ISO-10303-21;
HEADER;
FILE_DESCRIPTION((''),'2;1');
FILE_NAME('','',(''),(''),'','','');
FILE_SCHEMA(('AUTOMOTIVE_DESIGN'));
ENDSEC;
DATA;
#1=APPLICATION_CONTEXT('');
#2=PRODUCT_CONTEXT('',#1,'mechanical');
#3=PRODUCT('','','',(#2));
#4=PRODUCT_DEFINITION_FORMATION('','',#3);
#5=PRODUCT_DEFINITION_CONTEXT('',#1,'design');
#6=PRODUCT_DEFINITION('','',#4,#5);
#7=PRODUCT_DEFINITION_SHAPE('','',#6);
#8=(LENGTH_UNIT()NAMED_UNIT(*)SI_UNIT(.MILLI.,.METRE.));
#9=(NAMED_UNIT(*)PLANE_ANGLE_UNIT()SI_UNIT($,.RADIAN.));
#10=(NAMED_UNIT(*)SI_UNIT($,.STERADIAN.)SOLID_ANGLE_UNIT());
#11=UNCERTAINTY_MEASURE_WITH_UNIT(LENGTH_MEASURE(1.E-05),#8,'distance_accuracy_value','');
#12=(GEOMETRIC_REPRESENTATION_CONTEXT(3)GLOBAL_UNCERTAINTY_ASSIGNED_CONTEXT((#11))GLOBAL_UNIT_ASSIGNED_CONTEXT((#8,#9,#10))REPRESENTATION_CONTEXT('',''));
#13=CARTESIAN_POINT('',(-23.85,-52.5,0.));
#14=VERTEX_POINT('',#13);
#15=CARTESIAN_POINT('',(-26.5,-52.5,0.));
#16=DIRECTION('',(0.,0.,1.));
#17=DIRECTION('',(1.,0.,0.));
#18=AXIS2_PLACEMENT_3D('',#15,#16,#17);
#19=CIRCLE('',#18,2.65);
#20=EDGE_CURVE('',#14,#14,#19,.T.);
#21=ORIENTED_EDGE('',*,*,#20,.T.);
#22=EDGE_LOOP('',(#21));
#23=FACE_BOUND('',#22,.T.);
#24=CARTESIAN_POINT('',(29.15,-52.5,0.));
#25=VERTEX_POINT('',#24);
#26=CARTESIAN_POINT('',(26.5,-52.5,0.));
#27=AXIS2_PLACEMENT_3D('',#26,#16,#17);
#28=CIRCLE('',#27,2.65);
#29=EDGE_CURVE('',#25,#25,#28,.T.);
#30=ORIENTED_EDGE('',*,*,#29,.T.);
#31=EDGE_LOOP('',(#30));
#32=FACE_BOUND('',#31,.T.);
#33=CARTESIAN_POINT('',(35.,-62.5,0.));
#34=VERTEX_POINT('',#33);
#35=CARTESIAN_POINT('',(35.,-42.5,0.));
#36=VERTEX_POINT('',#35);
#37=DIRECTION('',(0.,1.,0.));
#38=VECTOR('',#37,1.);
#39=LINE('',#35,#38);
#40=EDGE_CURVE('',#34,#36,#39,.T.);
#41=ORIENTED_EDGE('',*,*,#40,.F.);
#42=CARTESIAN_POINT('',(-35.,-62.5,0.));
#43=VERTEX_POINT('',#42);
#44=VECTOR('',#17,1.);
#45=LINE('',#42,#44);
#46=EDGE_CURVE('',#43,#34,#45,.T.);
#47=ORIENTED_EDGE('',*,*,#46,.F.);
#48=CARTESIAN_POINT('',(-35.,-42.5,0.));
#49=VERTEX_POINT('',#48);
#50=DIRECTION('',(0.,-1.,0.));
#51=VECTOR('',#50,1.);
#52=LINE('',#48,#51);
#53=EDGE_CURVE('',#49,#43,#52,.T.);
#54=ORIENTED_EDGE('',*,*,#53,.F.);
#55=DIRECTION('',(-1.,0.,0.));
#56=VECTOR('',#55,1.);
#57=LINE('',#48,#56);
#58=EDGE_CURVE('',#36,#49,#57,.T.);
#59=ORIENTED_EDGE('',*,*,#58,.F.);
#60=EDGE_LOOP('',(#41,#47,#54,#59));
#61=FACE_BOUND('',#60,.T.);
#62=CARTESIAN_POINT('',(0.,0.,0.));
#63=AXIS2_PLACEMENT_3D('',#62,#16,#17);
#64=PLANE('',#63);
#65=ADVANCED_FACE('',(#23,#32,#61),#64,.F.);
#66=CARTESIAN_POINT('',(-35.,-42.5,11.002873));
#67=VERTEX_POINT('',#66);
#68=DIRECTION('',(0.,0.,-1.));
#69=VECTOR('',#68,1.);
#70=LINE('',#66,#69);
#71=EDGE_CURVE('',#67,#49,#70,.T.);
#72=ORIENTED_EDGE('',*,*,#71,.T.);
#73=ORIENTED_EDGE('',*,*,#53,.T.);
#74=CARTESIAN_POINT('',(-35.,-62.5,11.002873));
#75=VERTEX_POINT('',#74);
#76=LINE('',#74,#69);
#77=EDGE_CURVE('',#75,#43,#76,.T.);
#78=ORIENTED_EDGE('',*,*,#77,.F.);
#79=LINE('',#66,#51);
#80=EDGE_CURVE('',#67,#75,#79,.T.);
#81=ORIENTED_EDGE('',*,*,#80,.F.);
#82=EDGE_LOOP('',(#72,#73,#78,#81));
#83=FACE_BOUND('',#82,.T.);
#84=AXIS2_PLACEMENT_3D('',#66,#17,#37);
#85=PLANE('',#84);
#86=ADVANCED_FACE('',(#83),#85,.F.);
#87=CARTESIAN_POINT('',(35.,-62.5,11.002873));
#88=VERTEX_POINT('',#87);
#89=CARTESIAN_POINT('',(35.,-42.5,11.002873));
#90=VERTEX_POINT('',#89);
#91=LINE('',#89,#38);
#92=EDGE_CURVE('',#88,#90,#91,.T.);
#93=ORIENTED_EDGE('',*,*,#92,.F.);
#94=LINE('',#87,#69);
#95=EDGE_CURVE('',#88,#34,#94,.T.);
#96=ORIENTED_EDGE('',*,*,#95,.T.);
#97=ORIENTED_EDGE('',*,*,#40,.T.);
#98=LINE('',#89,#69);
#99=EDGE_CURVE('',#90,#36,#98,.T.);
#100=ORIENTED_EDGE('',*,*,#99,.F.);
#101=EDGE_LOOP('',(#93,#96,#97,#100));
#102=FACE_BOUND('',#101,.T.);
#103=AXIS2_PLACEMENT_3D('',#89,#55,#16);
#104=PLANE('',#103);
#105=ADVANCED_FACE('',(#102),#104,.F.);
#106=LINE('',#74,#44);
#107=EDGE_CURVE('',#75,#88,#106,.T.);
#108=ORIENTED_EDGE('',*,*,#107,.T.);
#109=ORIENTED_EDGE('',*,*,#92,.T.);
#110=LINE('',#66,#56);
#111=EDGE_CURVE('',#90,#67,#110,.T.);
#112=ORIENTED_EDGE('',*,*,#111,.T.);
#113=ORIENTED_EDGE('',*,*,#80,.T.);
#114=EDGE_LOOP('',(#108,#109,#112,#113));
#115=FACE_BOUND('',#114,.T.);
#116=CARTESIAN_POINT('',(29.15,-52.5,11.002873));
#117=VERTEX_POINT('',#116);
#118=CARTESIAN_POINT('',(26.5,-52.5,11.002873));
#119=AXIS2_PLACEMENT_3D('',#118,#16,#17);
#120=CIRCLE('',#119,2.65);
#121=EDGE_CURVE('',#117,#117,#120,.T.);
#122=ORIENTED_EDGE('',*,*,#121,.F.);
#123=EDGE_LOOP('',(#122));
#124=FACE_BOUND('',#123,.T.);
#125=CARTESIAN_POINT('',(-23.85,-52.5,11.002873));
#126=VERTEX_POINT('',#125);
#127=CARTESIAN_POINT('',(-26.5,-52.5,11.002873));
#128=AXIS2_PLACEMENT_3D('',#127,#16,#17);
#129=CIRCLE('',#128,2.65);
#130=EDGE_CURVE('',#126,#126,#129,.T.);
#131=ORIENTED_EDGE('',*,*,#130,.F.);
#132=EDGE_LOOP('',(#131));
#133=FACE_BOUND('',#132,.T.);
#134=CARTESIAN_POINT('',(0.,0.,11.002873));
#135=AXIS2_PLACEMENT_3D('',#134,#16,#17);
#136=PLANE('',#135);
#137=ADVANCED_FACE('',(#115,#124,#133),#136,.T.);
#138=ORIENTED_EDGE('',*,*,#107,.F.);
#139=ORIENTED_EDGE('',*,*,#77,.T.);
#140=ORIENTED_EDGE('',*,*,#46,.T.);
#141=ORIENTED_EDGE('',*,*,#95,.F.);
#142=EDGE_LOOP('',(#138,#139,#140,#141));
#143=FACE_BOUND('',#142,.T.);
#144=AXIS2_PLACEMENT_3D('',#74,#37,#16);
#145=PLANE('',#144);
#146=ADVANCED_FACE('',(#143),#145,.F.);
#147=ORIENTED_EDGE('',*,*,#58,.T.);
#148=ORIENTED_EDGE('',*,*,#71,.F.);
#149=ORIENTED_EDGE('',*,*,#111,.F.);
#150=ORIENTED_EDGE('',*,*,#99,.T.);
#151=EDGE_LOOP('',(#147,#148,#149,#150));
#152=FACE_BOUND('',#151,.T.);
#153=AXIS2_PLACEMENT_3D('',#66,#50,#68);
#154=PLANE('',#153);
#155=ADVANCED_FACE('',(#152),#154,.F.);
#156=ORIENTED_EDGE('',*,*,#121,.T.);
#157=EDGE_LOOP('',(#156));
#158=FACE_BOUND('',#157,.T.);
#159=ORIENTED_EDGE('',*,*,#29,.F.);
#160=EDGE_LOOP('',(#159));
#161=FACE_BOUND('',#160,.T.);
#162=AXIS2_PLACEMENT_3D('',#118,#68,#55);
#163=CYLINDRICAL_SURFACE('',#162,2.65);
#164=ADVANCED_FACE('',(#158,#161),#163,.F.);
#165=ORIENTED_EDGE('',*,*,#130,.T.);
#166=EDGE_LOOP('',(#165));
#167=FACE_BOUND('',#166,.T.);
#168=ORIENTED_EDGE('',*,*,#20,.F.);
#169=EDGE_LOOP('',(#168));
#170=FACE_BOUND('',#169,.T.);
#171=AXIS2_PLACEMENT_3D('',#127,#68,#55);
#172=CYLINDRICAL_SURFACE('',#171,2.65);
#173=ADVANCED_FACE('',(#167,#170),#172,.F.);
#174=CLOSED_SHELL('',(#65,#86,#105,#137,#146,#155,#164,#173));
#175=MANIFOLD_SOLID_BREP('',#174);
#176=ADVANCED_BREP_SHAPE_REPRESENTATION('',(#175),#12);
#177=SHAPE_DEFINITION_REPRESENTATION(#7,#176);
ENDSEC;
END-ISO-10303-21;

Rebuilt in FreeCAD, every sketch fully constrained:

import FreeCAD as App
import Part
import Sketcher
from FreeCAD import Vector
Q = App.Units.Quantity


def add_polygon(sketch, points):
    """Adds a closed chain of lines whose ends are joined by coincident constraints."""
    first, n = sketch.GeometryCount, len(points)
    for a, b in zip(points, points[1:] + points[:1]):
        sketch.addGeometry(Part.LineSegment(App.Vector(*a, 0), App.Vector(*b, 0)), False)
    for i in range(n):
        sketch.addConstraint(Sketcher.Constraint("Coincident", first + i, 2, first + (i + 1) % n, 1))

doc = App.newDocument("Part")
params = doc.addObject("Spreadsheet::Sheet", "Params")
for row, (alias, value) in enumerate([
    ("sketch1_diameter", "5.3 mm"),
    ("sketch1_width", "70 mm"),
    ("sketch1_height", "20 mm"),
    ("pad1_length", "11.002873 mm"),
], start=1):
    params.set(f"A{row}", alias)
    params.set(f"B{row}", "=" + value)
    params.setAlias(f"B{row}", alias)

body = doc.addObject("PartDesign::Body", "Body")

# Sketch on XY plane
sketch1 = doc.addObject("Sketcher::SketchObject", "Sketch")
body.addObject(sketch1)
sketch1.AttachmentSupport = (doc.XY_Plane, [""])
sketch1.MapMode = "FlatFace"
add_polygon(sketch1, [(-35, -42.5), (-35, -62.5), (35, -62.5), (35, -42.5)])  # lines 0-3
sketch1.addGeometry(Part.Circle(Vector(-26.5, -52.5, 0), Vector(0, 0, 1), 2.6), False)  # 4
sketch1.addGeometry(Part.Circle(Vector(26.5, -52.5, 0), Vector(0, 0, 1), 2.6), False)  # 5
sketch1.addConstraint(Sketcher.Constraint("Vertical", 0))
sketch1.addConstraint(Sketcher.Constraint("Horizontal", 1))
sketch1.addConstraint(Sketcher.Constraint("Vertical", 2))
sketch1.addConstraint(Sketcher.Constraint("Horizontal", 3))
sketch1.addConstraint(Sketcher.Constraint("Equal", 4, 5))
sketch1.addConstraint(Sketcher.Constraint("Symmetric", 4, 3, 5, 3, -2))
sketch1.addConstraint(Sketcher.Constraint("Diameter", 4, Q("5.3 mm")))
sketch1.addConstraint(Sketcher.Constraint("DistanceX", 1, 1, 1, 2, Q("70 mm")))
sketch1.addConstraint(Sketcher.Constraint("DistanceY", 0, 2, 0, 1, Q("20 mm")))
sketch1.addConstraint(Sketcher.Constraint("DistanceX", 0, 2, -1, 1, Q("35 mm")))
sketch1.addConstraint(Sketcher.Constraint("DistanceX", 4, 3, 5, 3, Q("53 mm")))
sketch1.addConstraint(Sketcher.Constraint("DistanceY", 0, 2, 4, 3, Q("10 mm")))
sketch1.addConstraint(Sketcher.Constraint("DistanceY", 4, 3, -1, 1, Q("52.5 mm")))
sketch1.setExpression("Constraints[10]", "Params.sketch1_diameter")
sketch1.setExpression("Constraints[11]", "Params.sketch1_width")
sketch1.setExpression("Constraints[12]", "Params.sketch1_height")
pad1 = doc.addObject("PartDesign::Pad", "Pad")
body.addObject(pad1)
pad1.Profile = sketch1
pad1.setExpression("Length", "Params.pad1_length")

doc.recompute()
